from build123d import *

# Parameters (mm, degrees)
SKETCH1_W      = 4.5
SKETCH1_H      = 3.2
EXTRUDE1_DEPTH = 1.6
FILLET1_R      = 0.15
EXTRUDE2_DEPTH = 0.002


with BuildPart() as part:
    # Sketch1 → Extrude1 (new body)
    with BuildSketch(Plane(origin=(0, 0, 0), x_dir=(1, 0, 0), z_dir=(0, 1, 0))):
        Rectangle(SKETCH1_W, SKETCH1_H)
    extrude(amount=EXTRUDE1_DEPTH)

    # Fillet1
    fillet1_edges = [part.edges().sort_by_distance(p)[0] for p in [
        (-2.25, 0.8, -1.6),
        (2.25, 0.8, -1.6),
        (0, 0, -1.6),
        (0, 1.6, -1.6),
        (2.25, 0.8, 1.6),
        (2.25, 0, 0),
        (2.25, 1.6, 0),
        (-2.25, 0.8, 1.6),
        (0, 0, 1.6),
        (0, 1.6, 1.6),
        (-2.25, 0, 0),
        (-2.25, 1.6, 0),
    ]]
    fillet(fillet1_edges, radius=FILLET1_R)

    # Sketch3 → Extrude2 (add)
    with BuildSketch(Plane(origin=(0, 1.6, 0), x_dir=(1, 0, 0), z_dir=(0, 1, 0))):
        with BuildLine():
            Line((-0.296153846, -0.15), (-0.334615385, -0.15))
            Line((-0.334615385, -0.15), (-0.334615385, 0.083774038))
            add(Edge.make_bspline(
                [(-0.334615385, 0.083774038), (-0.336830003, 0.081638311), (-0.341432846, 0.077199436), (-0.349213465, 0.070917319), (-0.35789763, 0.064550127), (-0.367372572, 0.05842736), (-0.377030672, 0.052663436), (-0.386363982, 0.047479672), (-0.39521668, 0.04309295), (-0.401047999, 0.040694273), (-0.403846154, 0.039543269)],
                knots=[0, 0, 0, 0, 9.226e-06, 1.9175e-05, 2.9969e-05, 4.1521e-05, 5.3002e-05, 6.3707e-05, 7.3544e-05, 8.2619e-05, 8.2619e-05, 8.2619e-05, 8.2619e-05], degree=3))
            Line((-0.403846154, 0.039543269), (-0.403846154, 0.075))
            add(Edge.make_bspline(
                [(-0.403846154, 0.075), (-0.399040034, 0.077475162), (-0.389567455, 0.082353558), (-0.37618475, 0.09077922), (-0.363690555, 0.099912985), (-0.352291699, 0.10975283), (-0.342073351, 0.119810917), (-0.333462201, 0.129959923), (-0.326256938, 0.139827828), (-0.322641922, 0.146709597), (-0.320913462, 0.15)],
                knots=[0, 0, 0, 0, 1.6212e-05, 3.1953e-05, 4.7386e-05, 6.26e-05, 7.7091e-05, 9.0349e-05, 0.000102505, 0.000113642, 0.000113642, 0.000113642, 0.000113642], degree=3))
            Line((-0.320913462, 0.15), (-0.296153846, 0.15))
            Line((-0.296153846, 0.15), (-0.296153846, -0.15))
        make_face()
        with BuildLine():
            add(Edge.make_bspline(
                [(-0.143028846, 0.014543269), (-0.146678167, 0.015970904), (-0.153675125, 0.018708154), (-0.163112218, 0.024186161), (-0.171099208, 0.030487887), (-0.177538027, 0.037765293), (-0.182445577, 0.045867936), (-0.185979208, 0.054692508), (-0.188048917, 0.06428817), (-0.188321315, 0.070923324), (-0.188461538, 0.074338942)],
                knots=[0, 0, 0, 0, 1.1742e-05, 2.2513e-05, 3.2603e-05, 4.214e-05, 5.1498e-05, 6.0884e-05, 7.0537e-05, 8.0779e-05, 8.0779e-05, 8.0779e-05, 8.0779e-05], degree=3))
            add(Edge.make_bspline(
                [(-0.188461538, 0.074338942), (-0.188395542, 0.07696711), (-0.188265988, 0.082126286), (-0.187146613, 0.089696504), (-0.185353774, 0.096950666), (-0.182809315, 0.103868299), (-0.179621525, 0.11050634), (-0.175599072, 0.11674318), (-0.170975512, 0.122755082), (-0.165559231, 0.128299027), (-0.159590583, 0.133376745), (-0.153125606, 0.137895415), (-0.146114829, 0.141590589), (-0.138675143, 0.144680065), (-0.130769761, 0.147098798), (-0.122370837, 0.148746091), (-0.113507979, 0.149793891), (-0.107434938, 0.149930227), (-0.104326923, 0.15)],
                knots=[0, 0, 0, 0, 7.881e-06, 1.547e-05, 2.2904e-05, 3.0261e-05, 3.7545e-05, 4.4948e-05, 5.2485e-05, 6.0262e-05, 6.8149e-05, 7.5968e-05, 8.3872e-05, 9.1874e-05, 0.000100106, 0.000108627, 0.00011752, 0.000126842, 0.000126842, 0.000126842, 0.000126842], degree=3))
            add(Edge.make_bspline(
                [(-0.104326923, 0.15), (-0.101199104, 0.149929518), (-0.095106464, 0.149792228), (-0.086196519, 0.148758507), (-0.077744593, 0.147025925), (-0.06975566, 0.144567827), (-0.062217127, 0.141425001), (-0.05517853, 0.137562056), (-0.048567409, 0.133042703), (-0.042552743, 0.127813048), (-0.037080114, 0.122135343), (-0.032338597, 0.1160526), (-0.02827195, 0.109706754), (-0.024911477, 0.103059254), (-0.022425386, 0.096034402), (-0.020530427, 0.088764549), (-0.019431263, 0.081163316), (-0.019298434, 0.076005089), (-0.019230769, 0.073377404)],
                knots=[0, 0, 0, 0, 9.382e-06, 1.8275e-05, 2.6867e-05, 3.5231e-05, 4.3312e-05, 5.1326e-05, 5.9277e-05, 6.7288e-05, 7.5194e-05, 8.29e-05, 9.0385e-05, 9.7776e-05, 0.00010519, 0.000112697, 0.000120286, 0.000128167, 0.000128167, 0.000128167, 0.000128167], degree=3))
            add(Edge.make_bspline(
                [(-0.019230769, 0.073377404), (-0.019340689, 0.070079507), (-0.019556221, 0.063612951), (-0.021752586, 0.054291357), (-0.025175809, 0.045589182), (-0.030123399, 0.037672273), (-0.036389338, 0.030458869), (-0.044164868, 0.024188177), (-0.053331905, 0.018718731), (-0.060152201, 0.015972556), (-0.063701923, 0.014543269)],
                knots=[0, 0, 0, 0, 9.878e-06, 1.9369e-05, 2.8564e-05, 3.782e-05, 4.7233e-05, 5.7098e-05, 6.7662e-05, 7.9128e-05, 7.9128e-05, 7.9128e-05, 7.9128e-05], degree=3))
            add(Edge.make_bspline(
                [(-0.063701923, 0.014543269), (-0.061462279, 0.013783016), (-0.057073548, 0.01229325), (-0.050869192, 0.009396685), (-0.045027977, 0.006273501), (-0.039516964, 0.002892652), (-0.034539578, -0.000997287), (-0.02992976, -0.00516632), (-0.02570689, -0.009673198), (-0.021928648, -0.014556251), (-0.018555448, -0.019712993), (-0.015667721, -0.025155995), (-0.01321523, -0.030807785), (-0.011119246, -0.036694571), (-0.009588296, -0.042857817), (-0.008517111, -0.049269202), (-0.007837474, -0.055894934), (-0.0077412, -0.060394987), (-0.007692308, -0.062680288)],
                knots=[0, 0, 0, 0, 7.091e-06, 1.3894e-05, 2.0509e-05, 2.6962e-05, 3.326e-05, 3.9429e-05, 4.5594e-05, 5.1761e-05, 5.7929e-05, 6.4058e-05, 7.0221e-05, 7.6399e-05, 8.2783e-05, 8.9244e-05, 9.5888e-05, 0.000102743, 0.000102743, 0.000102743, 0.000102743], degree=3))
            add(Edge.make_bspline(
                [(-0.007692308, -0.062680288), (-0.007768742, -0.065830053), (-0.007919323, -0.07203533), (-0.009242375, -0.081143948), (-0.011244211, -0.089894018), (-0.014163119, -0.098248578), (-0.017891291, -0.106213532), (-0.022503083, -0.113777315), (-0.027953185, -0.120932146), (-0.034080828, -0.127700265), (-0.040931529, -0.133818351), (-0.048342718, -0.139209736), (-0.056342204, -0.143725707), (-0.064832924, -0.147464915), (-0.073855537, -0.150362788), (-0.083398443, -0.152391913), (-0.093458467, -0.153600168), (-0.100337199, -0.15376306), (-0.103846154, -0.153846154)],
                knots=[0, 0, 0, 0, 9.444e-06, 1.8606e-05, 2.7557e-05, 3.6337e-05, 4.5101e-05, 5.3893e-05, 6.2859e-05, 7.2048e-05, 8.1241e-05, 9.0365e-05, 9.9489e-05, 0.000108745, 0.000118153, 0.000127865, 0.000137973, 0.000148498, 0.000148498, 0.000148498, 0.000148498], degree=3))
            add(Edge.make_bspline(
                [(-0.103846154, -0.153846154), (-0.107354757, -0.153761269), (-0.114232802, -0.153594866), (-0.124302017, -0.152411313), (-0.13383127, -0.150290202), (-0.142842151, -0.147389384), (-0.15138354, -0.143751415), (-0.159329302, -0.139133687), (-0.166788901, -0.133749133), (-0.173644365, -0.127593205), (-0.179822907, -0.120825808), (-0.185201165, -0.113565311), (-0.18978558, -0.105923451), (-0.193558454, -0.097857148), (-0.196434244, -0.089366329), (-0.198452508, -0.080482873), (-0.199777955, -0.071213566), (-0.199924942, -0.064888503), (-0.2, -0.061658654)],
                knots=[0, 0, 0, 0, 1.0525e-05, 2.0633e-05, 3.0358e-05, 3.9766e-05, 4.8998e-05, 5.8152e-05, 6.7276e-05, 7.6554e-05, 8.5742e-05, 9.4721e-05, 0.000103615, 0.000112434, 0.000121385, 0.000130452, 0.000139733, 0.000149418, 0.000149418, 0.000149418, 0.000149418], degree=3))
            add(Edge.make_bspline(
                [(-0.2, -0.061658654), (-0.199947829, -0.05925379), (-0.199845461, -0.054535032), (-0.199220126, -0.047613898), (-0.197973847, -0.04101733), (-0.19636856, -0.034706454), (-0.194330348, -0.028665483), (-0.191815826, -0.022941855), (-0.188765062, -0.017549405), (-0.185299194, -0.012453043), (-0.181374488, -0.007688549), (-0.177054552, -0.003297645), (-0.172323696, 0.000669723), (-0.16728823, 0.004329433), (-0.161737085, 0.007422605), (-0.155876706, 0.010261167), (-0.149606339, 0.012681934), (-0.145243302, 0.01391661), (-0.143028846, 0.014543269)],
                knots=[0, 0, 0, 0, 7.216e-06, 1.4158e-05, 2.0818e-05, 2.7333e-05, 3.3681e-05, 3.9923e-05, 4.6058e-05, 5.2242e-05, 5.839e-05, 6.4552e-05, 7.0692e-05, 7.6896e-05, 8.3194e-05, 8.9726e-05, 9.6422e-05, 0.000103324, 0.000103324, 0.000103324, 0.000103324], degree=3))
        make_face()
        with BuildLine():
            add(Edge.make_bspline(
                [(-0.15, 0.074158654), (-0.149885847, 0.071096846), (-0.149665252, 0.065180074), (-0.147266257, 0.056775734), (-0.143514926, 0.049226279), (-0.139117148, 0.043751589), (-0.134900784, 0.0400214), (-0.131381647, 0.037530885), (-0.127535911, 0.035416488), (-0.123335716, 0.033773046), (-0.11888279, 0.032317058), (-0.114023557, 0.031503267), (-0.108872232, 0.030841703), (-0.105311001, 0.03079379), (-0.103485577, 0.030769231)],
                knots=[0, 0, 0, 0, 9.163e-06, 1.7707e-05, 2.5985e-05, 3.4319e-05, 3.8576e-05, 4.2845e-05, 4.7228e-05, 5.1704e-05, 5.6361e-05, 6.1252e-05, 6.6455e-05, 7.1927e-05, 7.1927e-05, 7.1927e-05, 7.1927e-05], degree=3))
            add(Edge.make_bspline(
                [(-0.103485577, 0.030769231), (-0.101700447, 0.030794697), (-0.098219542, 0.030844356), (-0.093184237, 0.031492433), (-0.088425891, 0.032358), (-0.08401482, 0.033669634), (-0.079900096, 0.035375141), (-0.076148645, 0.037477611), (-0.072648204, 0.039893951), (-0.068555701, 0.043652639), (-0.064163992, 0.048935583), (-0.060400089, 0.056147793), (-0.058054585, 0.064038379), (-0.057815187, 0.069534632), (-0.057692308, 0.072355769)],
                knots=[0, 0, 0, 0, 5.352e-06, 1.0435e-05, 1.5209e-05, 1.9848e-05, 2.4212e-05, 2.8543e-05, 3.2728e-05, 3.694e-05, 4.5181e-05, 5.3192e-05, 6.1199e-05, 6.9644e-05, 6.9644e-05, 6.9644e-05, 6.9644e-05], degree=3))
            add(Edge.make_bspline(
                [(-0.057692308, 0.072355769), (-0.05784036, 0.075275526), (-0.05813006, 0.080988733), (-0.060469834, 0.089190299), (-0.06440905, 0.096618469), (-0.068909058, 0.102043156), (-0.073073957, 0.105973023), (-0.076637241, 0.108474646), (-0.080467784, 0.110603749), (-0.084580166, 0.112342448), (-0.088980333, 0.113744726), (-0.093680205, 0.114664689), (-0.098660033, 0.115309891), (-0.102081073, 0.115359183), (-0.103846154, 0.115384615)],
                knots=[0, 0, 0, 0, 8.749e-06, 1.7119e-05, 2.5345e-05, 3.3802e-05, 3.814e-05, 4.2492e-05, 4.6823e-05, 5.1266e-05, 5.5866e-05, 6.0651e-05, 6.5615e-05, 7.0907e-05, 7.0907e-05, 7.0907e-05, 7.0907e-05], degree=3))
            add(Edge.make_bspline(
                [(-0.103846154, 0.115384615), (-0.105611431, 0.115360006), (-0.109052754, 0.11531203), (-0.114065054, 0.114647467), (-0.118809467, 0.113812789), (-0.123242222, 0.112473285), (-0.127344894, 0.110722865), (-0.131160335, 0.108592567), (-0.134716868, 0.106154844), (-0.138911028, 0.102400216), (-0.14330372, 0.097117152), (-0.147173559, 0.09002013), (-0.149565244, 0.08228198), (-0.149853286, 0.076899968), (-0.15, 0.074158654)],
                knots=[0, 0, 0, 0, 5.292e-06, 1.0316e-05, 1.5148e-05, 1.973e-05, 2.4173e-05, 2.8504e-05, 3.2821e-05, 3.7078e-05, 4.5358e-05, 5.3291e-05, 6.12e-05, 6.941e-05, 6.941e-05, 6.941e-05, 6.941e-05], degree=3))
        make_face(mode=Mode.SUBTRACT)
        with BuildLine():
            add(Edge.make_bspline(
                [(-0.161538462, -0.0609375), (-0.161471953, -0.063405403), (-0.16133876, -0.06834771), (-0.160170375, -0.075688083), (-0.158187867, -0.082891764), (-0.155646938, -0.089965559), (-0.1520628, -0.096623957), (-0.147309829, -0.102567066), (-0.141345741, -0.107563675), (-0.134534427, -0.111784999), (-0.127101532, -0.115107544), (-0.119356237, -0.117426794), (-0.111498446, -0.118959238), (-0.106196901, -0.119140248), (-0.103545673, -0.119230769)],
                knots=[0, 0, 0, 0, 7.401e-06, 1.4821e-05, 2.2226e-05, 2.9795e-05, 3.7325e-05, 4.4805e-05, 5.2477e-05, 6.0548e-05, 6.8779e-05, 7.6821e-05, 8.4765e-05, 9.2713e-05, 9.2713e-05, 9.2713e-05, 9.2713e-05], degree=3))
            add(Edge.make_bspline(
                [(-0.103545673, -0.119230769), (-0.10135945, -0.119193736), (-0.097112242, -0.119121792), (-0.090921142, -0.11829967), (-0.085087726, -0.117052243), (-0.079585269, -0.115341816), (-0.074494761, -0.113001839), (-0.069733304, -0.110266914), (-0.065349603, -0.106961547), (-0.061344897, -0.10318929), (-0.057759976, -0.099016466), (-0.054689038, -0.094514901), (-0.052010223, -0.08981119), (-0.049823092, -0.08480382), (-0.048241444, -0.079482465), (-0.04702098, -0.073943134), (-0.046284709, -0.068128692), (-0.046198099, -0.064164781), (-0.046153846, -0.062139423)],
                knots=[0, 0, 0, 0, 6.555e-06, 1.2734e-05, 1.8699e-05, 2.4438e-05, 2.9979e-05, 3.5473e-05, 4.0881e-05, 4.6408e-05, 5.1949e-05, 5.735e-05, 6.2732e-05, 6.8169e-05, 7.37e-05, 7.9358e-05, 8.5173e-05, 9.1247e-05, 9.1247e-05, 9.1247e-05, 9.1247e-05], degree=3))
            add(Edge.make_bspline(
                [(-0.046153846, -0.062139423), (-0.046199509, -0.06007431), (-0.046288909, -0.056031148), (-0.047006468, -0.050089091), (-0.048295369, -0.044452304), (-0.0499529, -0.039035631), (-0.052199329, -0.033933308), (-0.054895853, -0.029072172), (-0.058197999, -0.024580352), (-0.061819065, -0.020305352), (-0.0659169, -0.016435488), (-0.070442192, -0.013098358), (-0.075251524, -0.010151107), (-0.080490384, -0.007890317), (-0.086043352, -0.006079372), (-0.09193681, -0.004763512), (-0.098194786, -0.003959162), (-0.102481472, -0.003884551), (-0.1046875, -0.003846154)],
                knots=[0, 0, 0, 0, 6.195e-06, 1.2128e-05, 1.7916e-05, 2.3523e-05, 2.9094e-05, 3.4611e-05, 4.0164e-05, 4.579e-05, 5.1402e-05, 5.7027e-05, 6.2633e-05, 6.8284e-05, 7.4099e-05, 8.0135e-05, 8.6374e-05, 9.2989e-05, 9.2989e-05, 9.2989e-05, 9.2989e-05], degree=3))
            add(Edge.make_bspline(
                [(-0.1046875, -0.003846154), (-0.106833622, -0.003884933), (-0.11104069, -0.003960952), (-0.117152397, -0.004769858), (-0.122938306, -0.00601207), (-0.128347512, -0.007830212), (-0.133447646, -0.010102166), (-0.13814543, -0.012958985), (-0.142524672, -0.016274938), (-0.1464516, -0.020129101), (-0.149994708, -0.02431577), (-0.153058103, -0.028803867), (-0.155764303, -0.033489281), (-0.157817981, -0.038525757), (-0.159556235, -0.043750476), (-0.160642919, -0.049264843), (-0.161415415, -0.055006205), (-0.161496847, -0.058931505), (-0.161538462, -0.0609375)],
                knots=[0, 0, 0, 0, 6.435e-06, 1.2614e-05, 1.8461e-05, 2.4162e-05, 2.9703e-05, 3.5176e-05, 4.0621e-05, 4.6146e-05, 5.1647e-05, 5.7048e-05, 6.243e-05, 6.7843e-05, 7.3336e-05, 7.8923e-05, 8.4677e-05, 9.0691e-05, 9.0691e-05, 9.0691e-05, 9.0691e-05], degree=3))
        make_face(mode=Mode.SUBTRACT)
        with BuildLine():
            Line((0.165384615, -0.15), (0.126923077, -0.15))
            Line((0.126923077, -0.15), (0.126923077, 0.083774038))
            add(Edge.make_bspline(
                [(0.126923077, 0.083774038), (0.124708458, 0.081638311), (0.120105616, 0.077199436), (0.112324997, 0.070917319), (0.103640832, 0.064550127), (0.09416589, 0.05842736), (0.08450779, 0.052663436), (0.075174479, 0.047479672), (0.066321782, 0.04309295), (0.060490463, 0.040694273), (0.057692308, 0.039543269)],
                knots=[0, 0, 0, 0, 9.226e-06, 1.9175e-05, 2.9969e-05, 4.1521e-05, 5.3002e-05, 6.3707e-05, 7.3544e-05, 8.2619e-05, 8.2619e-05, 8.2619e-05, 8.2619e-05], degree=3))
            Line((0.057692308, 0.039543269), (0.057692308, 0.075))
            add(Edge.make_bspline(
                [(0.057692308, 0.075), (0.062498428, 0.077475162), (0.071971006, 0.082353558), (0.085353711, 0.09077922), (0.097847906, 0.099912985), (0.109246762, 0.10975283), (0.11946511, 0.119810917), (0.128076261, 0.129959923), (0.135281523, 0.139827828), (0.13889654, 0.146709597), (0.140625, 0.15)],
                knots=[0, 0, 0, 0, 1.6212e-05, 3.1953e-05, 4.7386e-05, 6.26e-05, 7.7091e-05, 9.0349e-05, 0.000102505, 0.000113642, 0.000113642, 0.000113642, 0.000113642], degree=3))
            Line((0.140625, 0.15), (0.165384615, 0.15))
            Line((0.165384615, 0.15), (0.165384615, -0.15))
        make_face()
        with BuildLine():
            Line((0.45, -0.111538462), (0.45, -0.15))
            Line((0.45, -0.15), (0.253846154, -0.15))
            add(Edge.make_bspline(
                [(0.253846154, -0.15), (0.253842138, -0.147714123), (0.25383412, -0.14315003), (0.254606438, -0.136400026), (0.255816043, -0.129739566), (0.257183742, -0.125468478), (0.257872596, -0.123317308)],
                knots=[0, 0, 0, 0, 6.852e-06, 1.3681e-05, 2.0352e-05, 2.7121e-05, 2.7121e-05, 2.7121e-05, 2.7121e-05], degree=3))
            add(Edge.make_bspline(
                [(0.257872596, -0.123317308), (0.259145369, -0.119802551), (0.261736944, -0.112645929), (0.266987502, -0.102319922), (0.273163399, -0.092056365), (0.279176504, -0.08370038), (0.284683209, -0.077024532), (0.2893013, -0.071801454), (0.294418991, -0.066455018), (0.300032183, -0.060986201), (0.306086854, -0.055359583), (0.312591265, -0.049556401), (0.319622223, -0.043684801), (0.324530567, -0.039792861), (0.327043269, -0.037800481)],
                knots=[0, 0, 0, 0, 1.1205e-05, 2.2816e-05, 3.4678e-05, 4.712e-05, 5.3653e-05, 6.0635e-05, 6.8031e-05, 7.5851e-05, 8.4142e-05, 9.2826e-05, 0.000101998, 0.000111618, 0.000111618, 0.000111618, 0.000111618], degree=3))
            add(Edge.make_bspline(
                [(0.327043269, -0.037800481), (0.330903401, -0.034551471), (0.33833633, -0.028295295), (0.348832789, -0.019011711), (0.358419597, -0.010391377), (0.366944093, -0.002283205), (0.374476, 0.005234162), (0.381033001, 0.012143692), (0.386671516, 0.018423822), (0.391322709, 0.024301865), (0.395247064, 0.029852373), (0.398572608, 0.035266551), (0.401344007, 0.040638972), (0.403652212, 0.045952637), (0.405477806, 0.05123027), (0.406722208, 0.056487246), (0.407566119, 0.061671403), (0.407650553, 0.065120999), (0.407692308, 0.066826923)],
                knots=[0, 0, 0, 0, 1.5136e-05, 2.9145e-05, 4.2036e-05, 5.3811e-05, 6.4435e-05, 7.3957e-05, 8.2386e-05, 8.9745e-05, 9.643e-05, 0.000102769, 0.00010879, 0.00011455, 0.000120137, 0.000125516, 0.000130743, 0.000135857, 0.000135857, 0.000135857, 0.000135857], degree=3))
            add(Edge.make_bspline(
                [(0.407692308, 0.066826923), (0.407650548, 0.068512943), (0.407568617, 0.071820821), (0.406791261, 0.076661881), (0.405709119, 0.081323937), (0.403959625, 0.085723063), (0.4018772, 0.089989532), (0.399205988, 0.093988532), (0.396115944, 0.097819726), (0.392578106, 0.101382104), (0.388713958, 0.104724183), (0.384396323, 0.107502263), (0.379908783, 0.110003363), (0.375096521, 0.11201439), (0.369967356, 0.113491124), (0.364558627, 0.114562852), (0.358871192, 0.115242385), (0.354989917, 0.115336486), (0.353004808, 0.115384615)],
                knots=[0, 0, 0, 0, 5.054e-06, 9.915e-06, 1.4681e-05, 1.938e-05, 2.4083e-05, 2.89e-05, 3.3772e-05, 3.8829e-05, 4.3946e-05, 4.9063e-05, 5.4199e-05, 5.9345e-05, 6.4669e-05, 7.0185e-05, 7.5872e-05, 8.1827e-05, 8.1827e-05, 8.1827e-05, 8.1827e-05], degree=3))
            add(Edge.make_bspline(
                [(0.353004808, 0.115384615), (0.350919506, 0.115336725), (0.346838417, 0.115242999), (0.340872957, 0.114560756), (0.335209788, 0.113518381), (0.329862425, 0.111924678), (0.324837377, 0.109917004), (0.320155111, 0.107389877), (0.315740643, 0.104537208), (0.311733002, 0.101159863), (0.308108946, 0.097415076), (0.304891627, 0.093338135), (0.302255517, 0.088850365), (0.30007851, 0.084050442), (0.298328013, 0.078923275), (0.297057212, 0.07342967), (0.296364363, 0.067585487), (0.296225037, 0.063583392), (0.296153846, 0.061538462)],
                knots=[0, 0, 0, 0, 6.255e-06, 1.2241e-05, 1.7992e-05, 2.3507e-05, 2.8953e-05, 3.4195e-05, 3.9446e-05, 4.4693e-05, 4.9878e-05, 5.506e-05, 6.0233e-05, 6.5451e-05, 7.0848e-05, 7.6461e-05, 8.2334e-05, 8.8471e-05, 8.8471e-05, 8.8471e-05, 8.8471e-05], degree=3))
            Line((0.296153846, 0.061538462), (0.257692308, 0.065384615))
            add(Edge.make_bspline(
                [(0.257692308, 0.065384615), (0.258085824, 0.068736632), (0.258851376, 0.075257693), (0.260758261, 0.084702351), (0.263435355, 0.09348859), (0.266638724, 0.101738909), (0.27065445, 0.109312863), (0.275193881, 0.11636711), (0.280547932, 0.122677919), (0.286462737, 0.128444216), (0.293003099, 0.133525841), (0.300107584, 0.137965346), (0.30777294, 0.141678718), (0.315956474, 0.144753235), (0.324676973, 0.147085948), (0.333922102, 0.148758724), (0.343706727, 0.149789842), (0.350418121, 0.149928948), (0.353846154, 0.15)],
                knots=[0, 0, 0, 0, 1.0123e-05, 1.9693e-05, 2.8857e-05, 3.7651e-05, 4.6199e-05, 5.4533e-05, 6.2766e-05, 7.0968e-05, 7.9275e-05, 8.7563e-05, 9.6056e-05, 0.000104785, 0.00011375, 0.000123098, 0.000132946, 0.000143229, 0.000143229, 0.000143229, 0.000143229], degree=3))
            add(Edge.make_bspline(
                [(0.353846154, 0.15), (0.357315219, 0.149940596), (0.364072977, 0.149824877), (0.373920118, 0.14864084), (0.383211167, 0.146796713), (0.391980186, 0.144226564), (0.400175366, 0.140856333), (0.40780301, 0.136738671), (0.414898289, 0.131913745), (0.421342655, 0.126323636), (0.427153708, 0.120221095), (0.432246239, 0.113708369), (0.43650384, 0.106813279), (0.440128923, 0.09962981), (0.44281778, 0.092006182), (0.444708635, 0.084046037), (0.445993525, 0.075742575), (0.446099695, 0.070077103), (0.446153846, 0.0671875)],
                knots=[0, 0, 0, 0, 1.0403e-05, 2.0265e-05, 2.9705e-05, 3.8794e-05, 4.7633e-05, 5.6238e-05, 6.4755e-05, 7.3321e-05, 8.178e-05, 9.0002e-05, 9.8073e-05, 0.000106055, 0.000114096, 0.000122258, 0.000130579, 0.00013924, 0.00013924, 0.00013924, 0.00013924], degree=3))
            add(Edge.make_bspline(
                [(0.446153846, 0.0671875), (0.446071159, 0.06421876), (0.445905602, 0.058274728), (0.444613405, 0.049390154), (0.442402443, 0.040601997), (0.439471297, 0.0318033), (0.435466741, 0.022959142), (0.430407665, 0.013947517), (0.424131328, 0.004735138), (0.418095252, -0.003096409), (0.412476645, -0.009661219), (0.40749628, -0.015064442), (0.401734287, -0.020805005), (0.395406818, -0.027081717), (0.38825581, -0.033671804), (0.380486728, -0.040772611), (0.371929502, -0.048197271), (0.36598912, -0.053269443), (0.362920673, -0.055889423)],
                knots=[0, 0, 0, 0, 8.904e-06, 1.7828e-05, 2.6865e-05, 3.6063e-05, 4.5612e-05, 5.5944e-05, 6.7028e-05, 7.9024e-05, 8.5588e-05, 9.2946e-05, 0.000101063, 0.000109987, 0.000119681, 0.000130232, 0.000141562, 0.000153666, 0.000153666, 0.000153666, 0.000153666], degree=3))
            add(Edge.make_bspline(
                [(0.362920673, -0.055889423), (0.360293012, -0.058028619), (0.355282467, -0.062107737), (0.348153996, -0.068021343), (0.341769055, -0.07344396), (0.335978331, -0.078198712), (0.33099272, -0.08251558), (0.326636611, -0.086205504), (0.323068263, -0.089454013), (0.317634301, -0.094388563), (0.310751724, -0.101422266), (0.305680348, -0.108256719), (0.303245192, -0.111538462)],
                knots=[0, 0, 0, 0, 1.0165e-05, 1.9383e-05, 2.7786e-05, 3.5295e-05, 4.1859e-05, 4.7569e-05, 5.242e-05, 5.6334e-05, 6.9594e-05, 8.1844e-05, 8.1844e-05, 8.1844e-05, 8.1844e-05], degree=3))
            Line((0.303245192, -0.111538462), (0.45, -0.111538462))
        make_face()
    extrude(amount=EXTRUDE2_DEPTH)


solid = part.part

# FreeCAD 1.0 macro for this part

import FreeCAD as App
import Part
import Sketcher
from FreeCAD import Vector
Q = App.Units.Quantity

doc = App.newDocument("Part")
body = doc.addObject("PartDesign::Body", "Body")

# Sketch on XZ plane
sketch1 = doc.addObject("Sketcher::SketchObject", "Sketch")
body.addObject(sketch1)
sketch1.AttachmentSupport = (doc.XZ_Plane, [""])
sketch1.MapMode = "FlatFace"
sketch1.addGeometry([
    Part.LineSegment(Vector(-2.2, -1.6, 0), Vector(-2.2, 1.6, 0)),
    Part.LineSegment(Vector(-2.2, 1.6, 0), Vector(2.2, 1.6, 0)),
    Part.LineSegment(Vector(2.2, 1.6, 0), Vector(2.2, -1.6, 0)),
    Part.LineSegment(Vector(2.2, -1.6, 0), Vector(-2.2, -1.6, 0)),
], False)
sketch1.addConstraint([
    Sketcher.Constraint("Coincident", 0, 2, 1, 1),
    Sketcher.Constraint("Coincident", 1, 2, 2, 1),
    Sketcher.Constraint("Coincident", 2, 2, 3, 1),
    Sketcher.Constraint("Coincident", 3, 2, 0, 1),
    Sketcher.Constraint("Vertical", 0),
    Sketcher.Constraint("Horizontal", 1),
    Sketcher.Constraint("Vertical", 2),
    Sketcher.Constraint("Horizontal", 3),
    Sketcher.Constraint("Symmetric", 0, 2, 2, 2, -1, 1),
    Sketcher.Constraint("DistanceX", 1, 1, 1, 2, Q("4.5 mm")),
    Sketcher.Constraint("DistanceY", 0, 1, 0, 2, Q("3.2 mm")),
])
pad1 = doc.addObject("PartDesign::Pad", "Pad")
body.addObject(pad1)
pad1.Profile = sketch1
pad1.Length = 1.6
pad1.Reversed = True
doc.recompute()

fillet = doc.addObject("PartDesign::Fillet", "Fillet")
body.addObject(fillet)
fillet.Base = (pad1, ["Edge1"])
fillet.UseAllEdges = True
fillet.Radius = 0.15

# Sketch on XZ plane
sketch2 = doc.addObject("Sketcher::SketchObject", "Sketch001")
body.addObject(sketch2)
sketch2.AttachmentSupport = (doc.XZ_Plane, [""])
sketch2.MapMode = "FlatFace"
sketch2.AttachmentOffset = App.Placement(Vector(0, 0, -1.6), App.Rotation())
sketch2.addGeometry([
    Part.LineSegment(Vector(-0.334615, 0.15, 0), Vector(-0.296154, 0.15, 0)),  # 0
    Part.LineSegment(Vector(-0.296154, 0.15, 0), Vector(-0.296154, -0.15, 0)),  # 1
    Part.LineSegment(Vector(-0.296154, -0.15, 0), Vector(-0.320913, -0.15, 0)),  # 2
    Part.BSplineCurve([Vector(-0.403846, -0.075, 0), Vector(-0.39904, -0.077475, 0), Vector(-0.389567, -0.082354, 0), Vector(-0.376185, -0.090779, 0), Vector(-0.363691, -0.099913, 0), Vector(-0.352292, -0.109753, 0), Vector(-0.342073, -0.119811, 0), Vector(-0.333462, -0.12996, 0), Vector(-0.326257, -0.139828, 0), Vector(-0.322642, -0.14671, 0), Vector(-0.320913, -0.15, 0)], [4, 1, 1, 1, 1, 1, 1, 1, 4], [0, 0.000016212, 0.000031953, 0.000047386, 0.0000626, 0.000077091, 0.000090349, 0.000102505, 0.000113642], False, 3, [1, 1, 1, 1, 1, 1, 1, 1, 1, 1, 1], False),  # 3
    Part.LineSegment(Vector(-0.403846, -0.075, 0), Vector(-0.403846, -0.039543, 0)),  # 4
    Part.BSplineCurve([Vector(-0.334615, -0.083774, 0), Vector(-0.33683, -0.081638, 0), Vector(-0.341433, -0.077199, 0), Vector(-0.349213, -0.070917, 0), Vector(-0.357898, -0.06455, 0), Vector(-0.367373, -0.058427, 0), Vector(-0.377031, -0.052663, 0), Vector(-0.386364, -0.04748, 0), Vector(-0.395217, -0.043093, 0), Vector(-0.401048, -0.040694, 0), Vector(-0.403846, -0.039543, 0)], [4, 1, 1, 1, 1, 1, 1, 1, 4], [0, 0.000009226, 0.000019175, 0.000029969, 0.000041521, 0.000053002, 0.000063707, 0.000073544, 0.000082619], False, 3, [1, 1, 1, 1, 1, 1, 1, 1, 1, 1, 1], False),  # 5
    Part.LineSegment(Vector(-0.334615, -0.083774, 0), Vector(-0.334615, 0.15, 0)),  # 6
    Part.BSplineCurve([Vector(-0.143029, -0.014543, 0), Vector(-0.146678, -0.015971, 0), Vector(-0.153675, -0.018708, 0), Vector(-0.163112, -0.024186, 0), Vector(-0.171099, -0.030488, 0), Vector(-0.177538, -0.037765, 0), Vector(-0.182446, -0.045868, 0), Vector(-0.185979, -0.054693, 0), Vector(-0.188049, -0.064288, 0), Vector(-0.188321, -0.070923, 0), Vector(-0.188462, -0.074339, 0)], [4, 1, 1, 1, 1, 1, 1, 1, 4], [0, 0.000011742, 0.000022513, 0.000032603, 0.00004214, 0.000051498, 0.000060884, 0.000070537, 0.000080779], False, 3, [1, 1, 1, 1, 1, 1, 1, 1, 1, 1, 1], False),  # 7
    Part.BSplineCurve([Vector(-0.2, 0.061659, 0), Vector(-0.199948, 0.059254, 0), Vector(-0.199845, 0.054535, 0), Vector(-0.19922, 0.047614, 0), Vector(-0.197974, 0.041017, 0), Vector(-0.196369, 0.034706, 0), Vector(-0.19433, 0.028665, 0), Vector(-0.191816, 0.022942, 0), Vector(-0.188765, 0.017549, 0), Vector(-0.185299, 0.012453, 0), Vector(-0.181374, 0.007689, 0), Vector(-0.177055, 0.003298, 0), Vector(-0.172324, -0.00067, 0), Vector(-0.167288, -0.004329, 0), Vector(-0.161737, -0.007423, 0), Vector(-0.155877, -0.010261, 0), Vector(-0.149606, -0.012682, 0), Vector(-0.145243, -0.013917, 0), Vector(-0.143029, -0.014543, 0)], [4, 1, 1, 1, 1, 1, 1, 1, 1, 1, 1, 1, 1, 1, 1, 1, 4], [0, 0.000007216, 0.000014158, 0.000020818, 0.000027333, 0.000033681, 0.000039923, 0.000046058, 0.000052242, 0.00005839, 0.000064552, 0.000070692, 0.000076896, 0.000083194, 0.000089726, 0.000096422, 0.000103324], False, 3, [1, 1, 1, 1, 1, 1, 1, 1, 1, 1, 1, 1, 1, 1, 1, 1, 1, 1, 1], False),  # 8
    Part.BSplineCurve([Vector(-0.103846, 0.153846, 0), Vector(-0.107355, 0.153761, 0), Vector(-0.114233, 0.153595, 0), Vector(-0.124302, 0.152411, 0), Vector(-0.133831, 0.15029, 0), Vector(-0.142842, 0.147389, 0), Vector(-0.151384, 0.143751, 0), Vector(-0.159329, 0.139134, 0), Vector(-0.166789, 0.133749, 0), Vector(-0.173644, 0.127593, 0), Vector(-0.179823, 0.120826, 0), Vector(-0.185201, 0.113565, 0), Vector(-0.189786, 0.105923, 0), Vector(-0.193558, 0.097857, 0), Vector(-0.196434, 0.089366, 0), Vector(-0.198453, 0.080483, 0), Vector(-0.199778, 0.071214, 0), Vector(-0.199925, 0.064889, 0), Vector(-0.2, 0.061659, 0)], [4, 1, 1, 1, 1, 1, 1, 1, 1, 1, 1, 1, 1, 1, 1, 1, 4], [0, 0.000010525, 0.000020633, 0.000030358, 0.000039766, 0.000048998, 0.000058152, 0.000067276, 0.000076554, 0.000085742, 0.000094721, 0.000103615, 0.000112434, 0.000121385, 0.000130452, 0.000139733, 0.000149418], False, 3, [1, 1, 1, 1, 1, 1, 1, 1, 1, 1, 1, 1, 1, 1, 1, 1, 1, 1, 1], False),  # 9
    Part.BSplineCurve([Vector(-0.007692, 0.06268, 0), Vector(-0.007769, 0.06583, 0), Vector(-0.007919, 0.072035, 0), Vector(-0.009242, 0.081144, 0), Vector(-0.011244, 0.089894, 0), Vector(-0.014163, 0.098249, 0), Vector(-0.017891, 0.106214, 0), Vector(-0.022503, 0.113777, 0), Vector(-0.027953, 0.120932, 0), Vector(-0.034081, 0.1277, 0), Vector(-0.040932, 0.133818, 0), Vector(-0.048343, 0.13921, 0), Vector(-0.056342, 0.143726, 0), Vector(-0.064833, 0.147465, 0), Vector(-0.073856, 0.150363, 0), Vector(-0.083398, 0.152392, 0), Vector(-0.093458, 0.1536, 0), Vector(-0.100337, 0.153763, 0), Vector(-0.103846, 0.153846, 0)], [4, 1, 1, 1, 1, 1, 1, 1, 1, 1, 1, 1, 1, 1, 1, 1, 4], [0, 0.000009444, 0.000018606, 0.000027557, 0.000036337, 0.000045101, 0.000053893, 0.000062859, 0.000072048, 0.000081241, 0.000090365, 0.000099489, 0.000108745, 0.000118153, 0.000127865, 0.000137973, 0.000148498], False, 3, [1, 1, 1, 1, 1, 1, 1, 1, 1, 1, 1, 1, 1, 1, 1, 1, 1, 1, 1], False),  # 10
    Part.BSplineCurve([Vector(-0.063702, -0.014543, 0), Vector(-0.061462, -0.013783, 0), Vector(-0.057074, -0.012293, 0), Vector(-0.050869, -0.009397, 0), Vector(-0.045028, -0.006274, 0), Vector(-0.039517, -0.002893, 0), Vector(-0.03454, 0.000997, 0), Vector(-0.02993, 0.005166, 0), Vector(-0.025707, 0.009673, 0), Vector(-0.021929, 0.014556, 0), Vector(-0.018555, 0.019713, 0), Vector(-0.015668, 0.025156, 0), Vector(-0.013215, 0.030808, 0), Vector(-0.011119, 0.036695, 0), Vector(-0.009588, 0.042858, 0), Vector(-0.008517, 0.049269, 0), Vector(-0.007837, 0.055895, 0), Vector(-0.007741, 0.060395, 0), Vector(-0.007692, 0.06268, 0)], [4, 1, 1, 1, 1, 1, 1, 1, 1, 1, 1, 1, 1, 1, 1, 1, 4], [0, 0.000007091, 0.000013894, 0.000020509, 0.000026962, 0.00003326, 0.000039429, 0.000045594, 0.000051761, 0.000057929, 0.000064058, 0.000070221, 0.000076399, 0.000082783, 0.000089244, 0.000095888, 0.000102743], False, 3, [1, 1, 1, 1, 1, 1, 1, 1, 1, 1, 1, 1, 1, 1, 1, 1, 1, 1, 1], False),  # 11
    Part.BSplineCurve([Vector(-0.019231, -0.073377, 0), Vector(-0.019341, -0.07008, 0), Vector(-0.019556, -0.063613, 0), Vector(-0.021753, -0.054291, 0), Vector(-0.025176, -0.045589, 0), Vector(-0.030123, -0.037672, 0), Vector(-0.036389, -0.030459, 0), Vector(-0.044165, -0.024188, 0), Vector(-0.053332, -0.018719, 0), Vector(-0.060152, -0.015973, 0), Vector(-0.063702, -0.014543, 0)], [4, 1, 1, 1, 1, 1, 1, 1, 4], [0, 0.000009878, 0.000019369, 0.000028564, 0.00003782, 0.000047233, 0.000057098, 0.000067662, 0.000079128], False, 3, [1, 1, 1, 1, 1, 1, 1, 1, 1, 1, 1], False),  # 12
    Part.BSplineCurve([Vector(-0.104327, -0.15, 0), Vector(-0.101199, -0.14993, 0), Vector(-0.095106, -0.149792, 0), Vector(-0.086197, -0.148759, 0), Vector(-0.077745, -0.147026, 0), Vector(-0.069756, -0.144568, 0), Vector(-0.062217, -0.141425, 0), Vector(-0.055179, -0.137562, 0), Vector(-0.048567, -0.133043, 0), Vector(-0.042553, -0.127813, 0), Vector(-0.03708, -0.122135, 0), Vector(-0.032339, -0.116053, 0), Vector(-0.028272, -0.109707, 0), Vector(-0.024911, -0.103059, 0), Vector(-0.022425, -0.096034, 0), Vector(-0.02053, -0.088765, 0), Vector(-0.019431, -0.081163, 0), Vector(-0.019298, -0.076005, 0), Vector(-0.019231, -0.073377, 0)], [4, 1, 1, 1, 1, 1, 1, 1, 1, 1, 1, 1, 1, 1, 1, 1, 4], [0, 0.000009382, 0.000018275, 0.000026867, 0.000035231, 0.000043312, 0.000051326, 0.000059277, 0.000067288, 0.000075194, 0.0000829, 0.000090385, 0.000097776, 0.00010519, 0.000112697, 0.000120286, 0.000128167], False, 3, [1, 1, 1, 1, 1, 1, 1, 1, 1, 1, 1, 1, 1, 1, 1, 1, 1, 1, 1], False),  # 13
    Part.BSplineCurve([Vector(-0.188462, -0.074339, 0), Vector(-0.188396, -0.076967, 0), Vector(-0.188266, -0.082126, 0), Vector(-0.187147, -0.089697, 0), Vector(-0.185354, -0.096951, 0), Vector(-0.182809, -0.103868, 0), Vector(-0.179622, -0.110506, 0), Vector(-0.175599, -0.116743, 0), Vector(-0.170976, -0.122755, 0), Vector(-0.165559, -0.128299, 0), Vector(-0.159591, -0.133377, 0), Vector(-0.153126, -0.137895, 0), Vector(-0.146115, -0.141591, 0), Vector(-0.138675, -0.14468, 0), Vector(-0.13077, -0.147099, 0), Vector(-0.122371, -0.148746, 0), Vector(-0.113508, -0.149794, 0), Vector(-0.107435, -0.14993, 0), Vector(-0.104327, -0.15, 0)], [4, 1, 1, 1, 1, 1, 1, 1, 1, 1, 1, 1, 1, 1, 1, 1, 4], [0, 0.000007881, 0.00001547, 0.000022904, 0.000030261, 0.000037545, 0.000044948, 0.000052485, 0.000060262, 0.000068149, 0.000075968, 0.000083872, 0.000091874, 0.000100106, 0.000108627, 0.00011752, 0.000126842], False, 3, [1, 1, 1, 1, 1, 1, 1, 1, 1, 1, 1, 1, 1, 1, 1, 1, 1, 1, 1], False),  # 14
    Part.BSplineCurve([Vector(-0.104688, 0.003846, 0), Vector(-0.106834, 0.003885, 0), Vector(-0.111041, 0.003961, 0), Vector(-0.117152, 0.00477, 0), Vector(-0.122938, 0.006012, 0), Vector(-0.128348, 0.00783, 0), Vector(-0.133448, 0.010102, 0), Vector(-0.138145, 0.012959, 0), Vector(-0.142525, 0.016275, 0), Vector(-0.146452, 0.020129, 0), Vector(-0.149995, 0.024316, 0), Vector(-0.153058, 0.028804, 0), Vector(-0.155764, 0.033489, 0), Vector(-0.157818, 0.038526, 0), Vector(-0.159556, 0.04375, 0), Vector(-0.160643, 0.049265, 0), Vector(-0.161415, 0.055006, 0), Vector(-0.161497, 0.058932, 0), Vector(-0.161538, 0.060937, 0)], [4, 1, 1, 1, 1, 1, 1, 1, 1, 1, 1, 1, 1, 1, 1, 1, 4], [0, 0.000006435, 0.000012614, 0.000018461, 0.000024162, 0.000029703, 0.000035176, 0.000040621, 0.000046146, 0.000051647, 0.000057048, 0.00006243, 0.000067843, 0.000073336, 0.000078923, 0.000084677, 0.000090691], False, 3, [1, 1, 1, 1, 1, 1, 1, 1, 1, 1, 1, 1, 1, 1, 1, 1, 1, 1, 1], False),  # 15
    Part.BSplineCurve([Vector(-0.046154, 0.062139, 0), Vector(-0.0462, 0.060074, 0), Vector(-0.046289, 0.056031, 0), Vector(-0.047006, 0.050089, 0), Vector(-0.048295, 0.044452, 0), Vector(-0.049953, 0.039036, 0), Vector(-0.052199, 0.033933, 0), Vector(-0.054896, 0.029072, 0), Vector(-0.058198, 0.02458, 0), Vector(-0.061819, 0.020305, 0), Vector(-0.065917, 0.016435, 0), Vector(-0.070442, 0.013098, 0), Vector(-0.075252, 0.010151, 0), Vector(-0.08049, 0.00789, 0), Vector(-0.086043, 0.006079, 0), Vector(-0.091937, 0.004764, 0), Vector(-0.098195, 0.003959, 0), Vector(-0.102481, 0.003885, 0), Vector(-0.104688, 0.003846, 0)], [4, 1, 1, 1, 1, 1, 1, 1, 1, 1, 1, 1, 1, 1, 1, 1, 4], [0, 0.000006195, 0.000012128, 0.000017916, 0.000023523, 0.000029094, 0.000034611, 0.000040164, 0.00004579, 0.000051402, 0.000057027, 0.000062633, 0.000068284, 0.000074099, 0.000080135, 0.000086374, 0.000092989], False, 3, [1, 1, 1, 1, 1, 1, 1, 1, 1, 1, 1, 1, 1, 1, 1, 1, 1, 1, 1], False),  # 16
    Part.BSplineCurve([Vector(-0.103546, 0.119231, 0), Vector(-0.101359, 0.119194, 0), Vector(-0.097112, 0.119122, 0), Vector(-0.090921, 0.1183, 0), Vector(-0.085088, 0.117052, 0), Vector(-0.079585, 0.115342, 0), Vector(-0.074495, 0.113002, 0), Vector(-0.069733, 0.110267, 0), Vector(-0.06535, 0.106962, 0), Vector(-0.061345, 0.103189, 0), Vector(-0.05776, 0.099016, 0), Vector(-0.054689, 0.094515, 0), Vector(-0.05201, 0.089811, 0), Vector(-0.049823, 0.084804, 0), Vector(-0.048241, 0.079482, 0), Vector(-0.047021, 0.073943, 0), Vector(-0.046285, 0.068129, 0), Vector(-0.046198, 0.064165, 0), Vector(-0.046154, 0.062139, 0)], [4, 1, 1, 1, 1, 1, 1, 1, 1, 1, 1, 1, 1, 1, 1, 1, 4], [0, 0.000006555, 0.000012734, 0.000018699, 0.000024438, 0.000029979, 0.000035473, 0.000040881, 0.000046408, 0.000051949, 0.00005735, 0.000062732, 0.000068169, 0.0000737, 0.000079358, 0.000085173, 0.000091247], False, 3, [1, 1, 1, 1, 1, 1, 1, 1, 1, 1, 1, 1, 1, 1, 1, 1, 1, 1, 1], False),  # 17
    Part.BSplineCurve([Vector(-0.161538, 0.060937, 0), Vector(-0.161472, 0.063405, 0), Vector(-0.161339, 0.068348, 0), Vector(-0.16017, 0.075688, 0), Vector(-0.158188, 0.082892, 0), Vector(-0.155647, 0.089966, 0), Vector(-0.152063, 0.096624, 0), Vector(-0.14731, 0.102567, 0), Vector(-0.141346, 0.107564, 0), Vector(-0.134534, 0.111785, 0), Vector(-0.127102, 0.115108, 0), Vector(-0.119356, 0.117427, 0), Vector(-0.111498, 0.118959, 0), Vector(-0.106197, 0.11914, 0), Vector(-0.103546, 0.119231, 0)], [4, 1, 1, 1, 1, 1, 1, 1, 1, 1, 1, 1, 4], [0, 0.000007401, 0.000014821, 0.000022226, 0.000029795, 0.000037325, 0.000044805, 0.000052477, 0.000060548, 0.000068779, 0.000076821, 0.000084765, 0.000092713], False, 3, [1, 1, 1, 1, 1, 1, 1, 1, 1, 1, 1, 1, 1, 1, 1], False),  # 18
    Part.BSplineCurve([Vector(-0.103846, -0.115385, 0), Vector(-0.105611, -0.11536, 0), Vector(-0.109053, -0.115312, 0), Vector(-0.114065, -0.114647, 0), Vector(-0.118809, -0.113813, 0), Vector(-0.123242, -0.112473, 0), Vector(-0.127345, -0.110723, 0), Vector(-0.13116, -0.108593, 0), Vector(-0.134717, -0.106155, 0), Vector(-0.138911, -0.1024, 0), Vector(-0.143304, -0.097117, 0), Vector(-0.147174, -0.09002, 0), Vector(-0.149565, -0.082282, 0), Vector(-0.149853, -0.0769, 0), Vector(-0.15, -0.074159, 0)], [4, 1, 1, 1, 1, 1, 1, 1, 1, 1, 1, 1, 4], [0, 0.000005292, 0.000010316, 0.000015148, 0.00001973, 0.000024173, 0.000028504, 0.000032821, 0.000037078, 0.000045358, 0.000053291, 0.0000612, 0.00006941], False, 3, [1, 1, 1, 1, 1, 1, 1, 1, 1, 1, 1, 1, 1, 1, 1], False),  # 19
    Part.BSplineCurve([Vector(-0.057692, -0.072356, 0), Vector(-0.05784, -0.075276, 0), Vector(-0.05813, -0.080989, 0), Vector(-0.06047, -0.08919, 0), Vector(-0.064409, -0.096618, 0), Vector(-0.068909, -0.102043, 0), Vector(-0.073074, -0.105973, 0), Vector(-0.076637, -0.108475, 0), Vector(-0.080468, -0.110604, 0), Vector(-0.08458, -0.112342, 0), Vector(-0.08898, -0.113745, 0), Vector(-0.09368, -0.114665, 0), Vector(-0.09866, -0.11531, 0), Vector(-0.102081, -0.115359, 0), Vector(-0.103846, -0.115385, 0)], [4, 1, 1, 1, 1, 1, 1, 1, 1, 1, 1, 1, 4], [0, 0.000008749, 0.000017119, 0.000025345, 0.000033802, 0.00003814, 0.000042492, 0.000046823, 0.000051266, 0.000055866, 0.000060651, 0.000065615, 0.000070907], False, 3, [1, 1, 1, 1, 1, 1, 1, 1, 1, 1, 1, 1, 1, 1, 1], False),  # 20
    Part.BSplineCurve([Vector(-0.103486, -0.030769, 0), Vector(-0.1017, -0.030795, 0), Vector(-0.09822, -0.030844, 0), Vector(-0.093184, -0.031492, 0), Vector(-0.088426, -0.032358, 0), Vector(-0.084015, -0.03367, 0), Vector(-0.0799, -0.035375, 0), Vector(-0.076149, -0.037478, 0), Vector(-0.072648, -0.039894, 0), Vector(-0.068556, -0.043653, 0), Vector(-0.064164, -0.048936, 0), Vector(-0.0604, -0.056148, 0), Vector(-0.058055, -0.064038, 0), Vector(-0.057815, -0.069535, 0), Vector(-0.057692, -0.072356, 0)], [4, 1, 1, 1, 1, 1, 1, 1, 1, 1, 1, 1, 4], [0, 0.000005352, 0.000010435, 0.000015209, 0.000019848, 0.000024212, 0.000028543, 0.000032728, 0.00003694, 0.000045181, 0.000053192, 0.000061199, 0.000069644], False, 3, [1, 1, 1, 1, 1, 1, 1, 1, 1, 1, 1, 1, 1, 1, 1], False),  # 21
    Part.BSplineCurve([Vector(-0.15, -0.074159, 0), Vector(-0.149886, -0.071097, 0), Vector(-0.149665, -0.06518, 0), Vector(-0.147266, -0.056776, 0), Vector(-0.143515, -0.049226, 0), Vector(-0.139117, -0.043752, 0), Vector(-0.134901, -0.040021, 0), Vector(-0.131382, -0.037531, 0), Vector(-0.127536, -0.035416, 0), Vector(-0.123336, -0.033773, 0), Vector(-0.118883, -0.032317, 0), Vector(-0.114024, -0.031503, 0), Vector(-0.108872, -0.030842, 0), Vector(-0.105311, -0.030794, 0), Vector(-0.103486, -0.030769, 0)], [4, 1, 1, 1, 1, 1, 1, 1, 1, 1, 1, 1, 4], [0, 0.000009163, 0.000017707, 0.000025985, 0.000034319, 0.000038576, 0.000042845, 0.000047228, 0.000051704, 0.000056361, 0.000061252, 0.000066455, 0.000071927], False, 3, [1, 1, 1, 1, 1, 1, 1, 1, 1, 1, 1, 1, 1, 1, 1], False),  # 22
    Part.LineSegment(Vector(0.126923, 0.15, 0), Vector(0.165385, 0.15, 0)),  # 23
    Part.LineSegment(Vector(0.165385, 0.15, 0), Vector(0.165385, -0.15, 0)),  # 24
    Part.LineSegment(Vector(0.165385, -0.15, 0), Vector(0.140625, -0.15, 0)),  # 25
    Part.BSplineCurve([Vector(0.057692, -0.075, 0), Vector(0.062498, -0.077475, 0), Vector(0.071971, -0.082354, 0), Vector(0.085354, -0.090779, 0), Vector(0.097848, -0.099913, 0), Vector(0.109247, -0.109753, 0), Vector(0.119465, -0.119811, 0), Vector(0.128076, -0.12996, 0), Vector(0.135282, -0.139828, 0), Vector(0.138897, -0.14671, 0), Vector(0.140625, -0.15, 0)], [4, 1, 1, 1, 1, 1, 1, 1, 4], [0, 0.000016212, 0.000031953, 0.000047386, 0.0000626, 0.000077091, 0.000090349, 0.000102505, 0.000113642], False, 3, [1, 1, 1, 1, 1, 1, 1, 1, 1, 1, 1], False),  # 26
    Part.LineSegment(Vector(0.057692, -0.075, 0), Vector(0.057692, -0.039543, 0)),  # 27
    Part.BSplineCurve([Vector(0.126923, -0.083774, 0), Vector(0.124708, -0.081638, 0), Vector(0.120106, -0.077199, 0), Vector(0.112325, -0.070917, 0), Vector(0.103641, -0.06455, 0), Vector(0.094166, -0.058427, 0), Vector(0.084508, -0.052663, 0), Vector(0.075174, -0.04748, 0), Vector(0.066322, -0.043093, 0), Vector(0.06049, -0.040694, 0), Vector(0.057692, -0.039543, 0)], [4, 1, 1, 1, 1, 1, 1, 1, 4], [0, 0.000009226, 0.000019175, 0.000029969, 0.000041521, 0.000053002, 0.000063707, 0.000073544, 0.000082619], False, 3, [1, 1, 1, 1, 1, 1, 1, 1, 1, 1, 1], False),  # 28
    Part.LineSegment(Vector(0.126923, -0.083774, 0), Vector(0.126923, 0.15, 0)),  # 29
    Part.LineSegment(Vector(0.45, 0.15, 0), Vector(0.45, 0.111538, 0)),  # 30
    Part.LineSegment(Vector(0.45, 0.111538, 0), Vector(0.303245, 0.111538, 0)),  # 31
    Part.BSplineCurve([Vector(0.362921, 0.055889, 0), Vector(0.360293, 0.058029, 0), Vector(0.355282, 0.062108, 0), Vector(0.348154, 0.068021, 0), Vector(0.341769, 0.073444, 0), Vector(0.335978, 0.078199, 0), Vector(0.330993, 0.082516, 0), Vector(0.326637, 0.086206, 0), Vector(0.323068, 0.089454, 0), Vector(0.317634, 0.094389, 0), Vector(0.310752, 0.101422, 0), Vector(0.30568, 0.108257, 0), Vector(0.303245, 0.111538, 0)], [4, 1, 1, 1, 1, 1, 1, 1, 1, 1, 4], [0, 0.000010165, 0.000019383, 0.000027786, 0.000035295, 0.000041859, 0.000047569, 0.00005242, 0.000056334, 0.000069594, 0.000081844], False, 3, [1, 1, 1, 1, 1, 1, 1, 1, 1, 1, 1, 1, 1], False),  # 32
    Part.BSplineCurve([Vector(0.446154, -0.067187, 0), Vector(0.446071, -0.064219, 0), Vector(0.445906, -0.058275, 0), Vector(0.444613, -0.04939, 0), Vector(0.442402, -0.040602, 0), Vector(0.439471, -0.031803, 0), Vector(0.435467, -0.022959, 0), Vector(0.430408, -0.013948, 0), Vector(0.424131, -0.004735, 0), Vector(0.418095, 0.003096, 0), Vector(0.412477, 0.009661, 0), Vector(0.407496, 0.015064, 0), Vector(0.401734, 0.020805, 0), Vector(0.395407, 0.027082, 0), Vector(0.388256, 0.033672, 0), Vector(0.380487, 0.040773, 0), Vector(0.37193, 0.048197, 0), Vector(0.365989, 0.053269, 0), Vector(0.362921, 0.055889, 0)], [4, 1, 1, 1, 1, 1, 1, 1, 1, 1, 1, 1, 1, 1, 1, 1, 4], [0, 0.000008904, 0.000017828, 0.000026865, 0.000036063, 0.000045612, 0.000055944, 0.000067028, 0.000079024, 0.000085588, 0.000092946, 0.000101063, 0.000109987, 0.000119681, 0.000130232, 0.000141562, 0.000153666], False, 3, [1, 1, 1, 1, 1, 1, 1, 1, 1, 1, 1, 1, 1, 1, 1, 1, 1, 1, 1], False),  # 33
    Part.BSplineCurve([Vector(0.353846, -0.15, 0), Vector(0.357315, -0.149941, 0), Vector(0.364073, -0.149825, 0), Vector(0.37392, -0.148641, 0), Vector(0.383211, -0.146797, 0), Vector(0.39198, -0.144227, 0), Vector(0.400175, -0.140856, 0), Vector(0.407803, -0.136739, 0), Vector(0.414898, -0.131914, 0), Vector(0.421343, -0.126324, 0), Vector(0.427154, -0.120221, 0), Vector(0.432246, -0.113708, 0), Vector(0.436504, -0.106813, 0), Vector(0.440129, -0.09963, 0), Vector(0.442818, -0.092006, 0), Vector(0.444709, -0.084046, 0), Vector(0.445994, -0.075743, 0), Vector(0.4461, -0.070077, 0), Vector(0.446154, -0.067187, 0)], [4, 1, 1, 1, 1, 1, 1, 1, 1, 1, 1, 1, 1, 1, 1, 1, 4], [0, 0.000010403, 0.000020265, 0.000029705, 0.000038794, 0.000047633, 0.000056238, 0.000064755, 0.000073321, 0.00008178, 0.000090002, 0.000098073, 0.000106055, 0.000114096, 0.000122258, 0.000130579, 0.00013924], False, 3, [1, 1, 1, 1, 1, 1, 1, 1, 1, 1, 1, 1, 1, 1, 1, 1, 1, 1, 1], False),  # 34
    Part.BSplineCurve([Vector(0.257692, -0.065385, 0), Vector(0.258086, -0.068737, 0), Vector(0.258851, -0.075258, 0), Vector(0.260758, -0.084702, 0), Vector(0.263435, -0.093489, 0), Vector(0.266639, -0.101739, 0), Vector(0.270654, -0.109313, 0), Vector(0.275194, -0.116367, 0), Vector(0.280548, -0.122678, 0), Vector(0.286463, -0.128444, 0), Vector(0.293003, -0.133526, 0), Vector(0.300108, -0.137965, 0), Vector(0.307773, -0.141679, 0), Vector(0.315956, -0.144753, 0), Vector(0.324677, -0.147086, 0), Vector(0.333922, -0.148759, 0), Vector(0.343707, -0.14979, 0), Vector(0.350418, -0.149929, 0), Vector(0.353846, -0.15, 0)], [4, 1, 1, 1, 1, 1, 1, 1, 1, 1, 1, 1, 1, 1, 1, 1, 4], [0, 0.000010123, 0.000019693, 0.000028857, 0.000037651, 0.000046199, 0.000054533, 0.000062766, 0.000070968, 0.000079275, 0.000087563, 0.000096056, 0.000104785, 0.00011375, 0.000123098, 0.000132946, 0.000143229], False, 3, [1, 1, 1, 1, 1, 1, 1, 1, 1, 1, 1, 1, 1, 1, 1, 1, 1, 1, 1], False),  # 35
    Part.LineSegment(Vector(0.257692, -0.065385, 0), Vector(0.296154, -0.061538, 0)),  # 36
    Part.BSplineCurve([Vector(0.353005, -0.115385, 0), Vector(0.35092, -0.115337, 0), Vector(0.346838, -0.115243, 0), Vector(0.340873, -0.114561, 0), Vector(0.33521, -0.113518, 0), Vector(0.329862, -0.111925, 0), Vector(0.324837, -0.109917, 0), Vector(0.320155, -0.10739, 0), Vector(0.315741, -0.104537, 0), Vector(0.311733, -0.10116, 0), Vector(0.308109, -0.097415, 0), Vector(0.304892, -0.093338, 0), Vector(0.302256, -0.08885, 0), Vector(0.300079, -0.08405, 0), Vector(0.298328, -0.078923, 0), Vector(0.297057, -0.07343, 0), Vector(0.296364, -0.067585, 0), Vector(0.296225, -0.063583, 0), Vector(0.296154, -0.061538, 0)], [4, 1, 1, 1, 1, 1, 1, 1, 1, 1, 1, 1, 1, 1, 1, 1, 4], [0, 0.000006255, 0.000012241, 0.000017992, 0.000023507, 0.000028953, 0.000034195, 0.000039446, 0.000044693, 0.000049878, 0.00005506, 0.000060233, 0.000065451, 0.000070848, 0.000076461, 0.000082334, 0.000088471], False, 3, [1, 1, 1, 1, 1, 1, 1, 1, 1, 1, 1, 1, 1, 1, 1, 1, 1, 1, 1], False),  # 37
    Part.BSplineCurve([Vector(0.407692, -0.066827, 0), Vector(0.407651, -0.068513, 0), Vector(0.407569, -0.071821, 0), Vector(0.406791, -0.076662, 0), Vector(0.405709, -0.081324, 0), Vector(0.40396, -0.085723, 0), Vector(0.401877, -0.08999, 0), Vector(0.399206, -0.093989, 0), Vector(0.396116, -0.09782, 0), Vector(0.392578, -0.101382, 0), Vector(0.388714, -0.104724, 0), Vector(0.384396, -0.107502, 0), Vector(0.379909, -0.110003, 0), Vector(0.375097, -0.112014, 0), Vector(0.369967, -0.113491, 0), Vector(0.364559, -0.114563, 0), Vector(0.358871, -0.115242, 0), Vector(0.35499, -0.115336, 0), Vector(0.353005, -0.115385, 0)], [4, 1, 1, 1, 1, 1, 1, 1, 1, 1, 1, 1, 1, 1, 1, 1, 4], [0, 0.000005054, 0.000009915, 0.000014681, 0.00001938, 0.000024083, 0.0000289, 0.000033772, 0.000038829, 0.000043946, 0.000049063, 0.000054199, 0.000059345, 0.000064669, 0.000070185, 0.000075872, 0.000081827], False, 3, [1, 1, 1, 1, 1, 1, 1, 1, 1, 1, 1, 1, 1, 1, 1, 1, 1, 1, 1], False),  # 38
    Part.BSplineCurve([Vector(0.327043, 0.0378, 0), Vector(0.330903, 0.034551, 0), Vector(0.338336, 0.028295, 0), Vector(0.348833, 0.019012, 0), Vector(0.35842, 0.010391, 0), Vector(0.366944, 0.002283, 0), Vector(0.374476, -0.005234, 0), Vector(0.381033, -0.012144, 0), Vector(0.386672, -0.018424, 0), Vector(0.391323, -0.024302, 0), Vector(0.395247, -0.029852, 0), Vector(0.398573, -0.035267, 0), Vector(0.401344, -0.040639, 0), Vector(0.403652, -0.045953, 0), Vector(0.405478, -0.05123, 0), Vector(0.406722, -0.056487, 0), Vector(0.407566, -0.061671, 0), Vector(0.407651, -0.065121, 0), Vector(0.407692, -0.066827, 0)], [4, 1, 1, 1, 1, 1, 1, 1, 1, 1, 1, 1, 1, 1, 1, 1, 4], [0, 0.000015136, 0.000029145, 0.000042036, 0.000053811, 0.000064435, 0.000073957, 0.000082386, 0.000089745, 0.00009643, 0.000102769, 0.00010879, 0.00011455, 0.000120137, 0.000125516, 0.000130743, 0.000135857], False, 3, [1, 1, 1, 1, 1, 1, 1, 1, 1, 1, 1, 1, 1, 1, 1, 1, 1, 1, 1], False),  # 39
    Part.BSplineCurve([Vector(0.257873, 0.123317, 0), Vector(0.259145, 0.119803, 0), Vector(0.261737, 0.112646, 0), Vector(0.266988, 0.10232, 0), Vector(0.273163, 0.092056, 0), Vector(0.279177, 0.0837, 0), Vector(0.284683, 0.077025, 0), Vector(0.289301, 0.071801, 0), Vector(0.294419, 0.066455, 0), Vector(0.300032, 0.060986, 0), Vector(0.306087, 0.05536, 0), Vector(0.312591, 0.049556, 0), Vector(0.319622, 0.043685, 0), Vector(0.324531, 0.039793, 0), Vector(0.327043, 0.0378, 0)], [4, 1, 1, 1, 1, 1, 1, 1, 1, 1, 1, 1, 4], [0, 0.000011205, 0.000022816, 0.000034678, 0.00004712, 0.000053653, 0.000060635, 0.000068031, 0.000075851, 0.000084142, 0.000092826, 0.000101998, 0.000111618], False, 3, [1, 1, 1, 1, 1, 1, 1, 1, 1, 1, 1, 1, 1, 1, 1], False),  # 40
    Part.BSplineCurve([Vector(0.253846, 0.15, 0), Vector(0.253842, 0.147714, 0), Vector(0.253834, 0.14315, 0), Vector(0.254606, 0.1364, 0), Vector(0.255816, 0.12974, 0), Vector(0.257184, 0.125468, 0), Vector(0.257873, 0.123317, 0)], [4, 1, 1, 1, 4], [0, 0.000006852, 0.000013681, 0.000020352, 0.000027121], False, 3, [1, 1, 1, 1, 1, 1, 1], False),  # 41
    Part.LineSegment(Vector(0.253846, 0.15, 0), Vector(0.45, 0.15, 0)),  # 42
], False)
sketch2.addConstraint([
    Sketcher.Constraint("Block", 3),
    Sketcher.Constraint("Block", 5),
    Sketcher.Constraint("Block", 7),
    Sketcher.Constraint("Block", 8),
    Sketcher.Constraint("Block", 9),
    Sketcher.Constraint("Block", 10),
    Sketcher.Constraint("Block", 11),
    Sketcher.Constraint("Block", 12),
    Sketcher.Constraint("Block", 13),
    Sketcher.Constraint("Block", 14),
    Sketcher.Constraint("Block", 15),
    Sketcher.Constraint("Block", 16),
    Sketcher.Constraint("Block", 17),
    Sketcher.Constraint("Block", 18),
    Sketcher.Constraint("Block", 19),
    Sketcher.Constraint("Block", 20),
    Sketcher.Constraint("Block", 21),
    Sketcher.Constraint("Block", 22),
    Sketcher.Constraint("Block", 26),
    Sketcher.Constraint("Block", 28),
    Sketcher.Constraint("Block", 32),
    Sketcher.Constraint("Block", 33),
    Sketcher.Constraint("Block", 34),
    Sketcher.Constraint("Block", 35),
    Sketcher.Constraint("Block", 37),
    Sketcher.Constraint("Block", 38),
    Sketcher.Constraint("Block", 39),
    Sketcher.Constraint("Block", 40),
    Sketcher.Constraint("Block", 41),
    Sketcher.Constraint("Coincident", 0, 2, 1, 1),
    Sketcher.Constraint("Coincident", 1, 2, 2, 1),
    Sketcher.Constraint("Coincident", 2, 2, 3, 2),
    Sketcher.Constraint("Coincident", 3, 1, 4, 1),
    Sketcher.Constraint("Coincident", 4, 2, 5, 2),
    Sketcher.Constraint("Coincident", 5, 1, 6, 1),
    Sketcher.Constraint("Coincident", 6, 2, 0, 1),
    Sketcher.Constraint("Coincident", 23, 2, 24, 1),
    Sketcher.Constraint("Coincident", 24, 2, 25, 1),
    Sketcher.Constraint("Coincident", 25, 2, 26, 2),
    Sketcher.Constraint("Coincident", 26, 1, 27, 1),
    Sketcher.Constraint("Coincident", 27, 2, 28, 2),
    Sketcher.Constraint("Coincident", 28, 1, 29, 1),
    Sketcher.Constraint("Coincident", 29, 2, 23, 1),
    Sketcher.Constraint("Coincident", 30, 2, 31, 1),
    Sketcher.Constraint("Coincident", 31, 2, 32, 2),
    Sketcher.Constraint("Coincident", 35, 1, 36, 1),
    Sketcher.Constraint("Coincident", 36, 2, 37, 2),
    Sketcher.Constraint("Coincident", 41, 1, 42, 1),
    Sketcher.Constraint("Coincident", 42, 2, 30, 1),
    Sketcher.Constraint("Horizontal", 0),
    Sketcher.Constraint("Vertical", 1),
    Sketcher.Constraint("Horizontal", 2),
    Sketcher.Constraint("Vertical", 6),
    Sketcher.Constraint("Horizontal", 23),
    Sketcher.Constraint("Vertical", 24),
    Sketcher.Constraint("Horizontal", 25),
    Sketcher.Constraint("Vertical", 29),
    Sketcher.Constraint("Vertical", 30),
    Sketcher.Constraint("Horizontal", 31),
    Sketcher.Constraint("Horizontal", 42),
    Sketcher.Constraint("DistanceY", 1, 2, 1, 1, Q("0.3 mm")),
    Sketcher.Constraint("DistanceY", 24, 2, 24, 1, Q("0.3 mm")),
    Sketcher.Constraint("DistanceX", 6, 2, 23, 2, Q("0.5 mm")),
    Sketcher.Constraint("DistanceX", -1, 1, 30, 2, Q("0.45 mm")),
    Sketcher.Constraint("DistanceX", 0, 1, 0, 2, Q("0.038462 mm")),
])
pad2 = doc.addObject("PartDesign::Pad", "Pad001")
body.addObject(pad2)
pad2.Profile = sketch2
pad2.Length = 0.002
pad2.Reversed = True

doc.recompute()
